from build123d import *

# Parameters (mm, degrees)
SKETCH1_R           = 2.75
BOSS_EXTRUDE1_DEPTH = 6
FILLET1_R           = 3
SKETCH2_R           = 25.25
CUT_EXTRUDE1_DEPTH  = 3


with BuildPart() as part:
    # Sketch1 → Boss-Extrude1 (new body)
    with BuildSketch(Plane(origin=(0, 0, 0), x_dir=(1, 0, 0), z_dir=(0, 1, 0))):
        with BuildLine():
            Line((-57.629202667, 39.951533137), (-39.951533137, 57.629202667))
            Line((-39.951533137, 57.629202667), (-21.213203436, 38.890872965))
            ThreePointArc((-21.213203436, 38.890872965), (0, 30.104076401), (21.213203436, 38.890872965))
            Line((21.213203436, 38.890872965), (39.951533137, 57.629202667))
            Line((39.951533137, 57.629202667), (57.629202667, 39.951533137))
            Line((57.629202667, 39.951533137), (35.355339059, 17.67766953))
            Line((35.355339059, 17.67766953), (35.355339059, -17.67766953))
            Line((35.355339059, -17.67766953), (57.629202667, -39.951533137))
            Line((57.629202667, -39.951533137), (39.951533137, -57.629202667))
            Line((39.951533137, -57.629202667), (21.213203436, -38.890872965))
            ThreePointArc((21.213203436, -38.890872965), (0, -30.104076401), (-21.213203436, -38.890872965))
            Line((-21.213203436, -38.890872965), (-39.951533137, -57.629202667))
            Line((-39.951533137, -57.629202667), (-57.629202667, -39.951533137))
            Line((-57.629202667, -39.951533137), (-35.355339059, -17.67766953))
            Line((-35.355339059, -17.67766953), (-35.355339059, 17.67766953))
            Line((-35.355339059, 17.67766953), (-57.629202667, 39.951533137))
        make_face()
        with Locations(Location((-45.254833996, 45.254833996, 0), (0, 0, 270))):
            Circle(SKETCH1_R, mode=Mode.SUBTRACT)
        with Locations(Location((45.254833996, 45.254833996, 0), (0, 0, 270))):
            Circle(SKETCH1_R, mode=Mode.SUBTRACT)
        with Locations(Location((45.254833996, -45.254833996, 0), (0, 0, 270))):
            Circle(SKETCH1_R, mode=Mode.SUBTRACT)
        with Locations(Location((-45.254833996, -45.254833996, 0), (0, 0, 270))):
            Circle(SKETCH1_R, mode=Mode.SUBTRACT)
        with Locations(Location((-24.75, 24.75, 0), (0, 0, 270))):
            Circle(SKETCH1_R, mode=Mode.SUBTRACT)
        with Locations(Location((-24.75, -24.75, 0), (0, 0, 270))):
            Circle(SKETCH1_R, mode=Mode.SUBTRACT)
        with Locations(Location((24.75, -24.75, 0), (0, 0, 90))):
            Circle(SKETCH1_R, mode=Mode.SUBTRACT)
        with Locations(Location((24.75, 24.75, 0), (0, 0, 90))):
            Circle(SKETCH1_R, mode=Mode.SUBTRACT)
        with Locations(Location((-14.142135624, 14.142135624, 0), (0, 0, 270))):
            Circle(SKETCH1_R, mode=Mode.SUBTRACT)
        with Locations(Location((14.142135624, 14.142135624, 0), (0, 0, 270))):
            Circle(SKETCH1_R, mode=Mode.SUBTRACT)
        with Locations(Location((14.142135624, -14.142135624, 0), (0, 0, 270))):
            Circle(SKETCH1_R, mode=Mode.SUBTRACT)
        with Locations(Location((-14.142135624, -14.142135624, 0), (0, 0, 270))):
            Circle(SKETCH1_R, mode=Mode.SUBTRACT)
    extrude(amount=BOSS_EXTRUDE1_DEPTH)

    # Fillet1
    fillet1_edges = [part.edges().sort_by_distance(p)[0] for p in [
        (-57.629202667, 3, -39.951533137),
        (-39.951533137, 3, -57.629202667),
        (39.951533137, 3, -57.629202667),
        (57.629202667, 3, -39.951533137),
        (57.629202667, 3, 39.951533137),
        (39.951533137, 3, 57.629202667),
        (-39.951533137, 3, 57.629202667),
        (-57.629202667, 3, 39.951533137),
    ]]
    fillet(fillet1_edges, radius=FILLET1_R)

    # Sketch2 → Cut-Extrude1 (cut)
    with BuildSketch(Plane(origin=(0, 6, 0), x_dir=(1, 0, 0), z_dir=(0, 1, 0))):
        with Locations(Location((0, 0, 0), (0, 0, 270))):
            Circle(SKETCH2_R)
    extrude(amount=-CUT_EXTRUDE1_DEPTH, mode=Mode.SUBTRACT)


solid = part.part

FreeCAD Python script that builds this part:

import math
import FreeCAD as App
import Part
import Sketcher

V = App.Vector
Q = App.Units.Quantity


def edges_at(feature, points):
    """Names of the edges that pass closest to the given points."""
    edges = feature.Shape.Edges
    near = lambda p: min(range(len(edges)), key=lambda i: edges[i].distToShape(Part.Vertex(*p))[0])
    return sorted({f"Edge{near(p) + 1}" for p in points})

doc = App.newDocument("Part")
body = doc.addObject("PartDesign::Body", "Body")

# Sketch on XZ plane
sketch1 = body.newObject("Sketcher::SketchObject", "Sketch")
sketch1.AttachmentSupport = (doc.getObject("XZ_Plane"), [""])
sketch1.MapMode = "FlatFace"
sketch1.addGeometry(Part.LineSegment(V(-39.951533, -57.629203, 0), V(-57.629203, -39.951533, 0)), False)
sketch1.addGeometry(Part.LineSegment(V(-57.629203, -39.951533, 0), V(-35.355339, -17.67767, 0)), False)
sketch1.addGeometry(Part.LineSegment(V(-35.355339, -17.67767, 0), V(-35.355339, 17.67767, 0)), False)
sketch1.addGeometry(Part.LineSegment(V(-35.355339, 17.67767, 0), V(-57.629203, 39.951533, 0)), False)
sketch1.addGeometry(Part.LineSegment(V(-57.629203, 39.951533, 0), V(-39.951533, 57.629203, 0)), False)
sketch1.addGeometry(Part.LineSegment(V(-39.951533, 57.629203, 0), V(-21.213203, 38.890873, 0)), False)
sketch1.addGeometry(Part.ArcOfCircle(Part.Circle(V(0, 60.104076, 0), V(0, 0, 1), 30), math.radians(-135), math.radians(-45)), False)
sketch1.addGeometry(Part.LineSegment(V(21.213203, 38.890873, 0), V(39.951533, 57.629203, 0)), False)
sketch1.addGeometry(Part.LineSegment(V(39.951533, 57.629203, 0), V(57.629203, 39.951533, 0)), False)
sketch1.addGeometry(Part.LineSegment(V(57.629203, 39.951533, 0), V(35.355339, 17.67767, 0)), False)
sketch1.addGeometry(Part.LineSegment(V(35.355339, 17.67767, 0), V(35.355339, -17.67767, 0)), False)
sketch1.addGeometry(Part.LineSegment(V(35.355339, -17.67767, 0), V(57.629203, -39.951533, 0)), False)
sketch1.addGeometry(Part.LineSegment(V(57.629203, -39.951533, 0), V(39.951533, -57.629203, 0)), False)
sketch1.addGeometry(Part.LineSegment(V(39.951533, -57.629203, 0), V(21.213203, -38.890873, 0)), False)
sketch1.addGeometry(Part.ArcOfCircle(Part.Circle(V(0, -60.104076, 0), V(0, 0, 1), 30), math.radians(45), math.radians(135)), False)
sketch1.addGeometry(Part.LineSegment(V(-21.213203, -38.890873, 0), V(-39.951533, -57.629203, 0)), False)
sketch1.addGeometry(Part.Circle(V(45.254834, 45.254834, 0), V(0, 0, 1), 2.75), False)
sketch1.addGeometry(Part.Circle(V(24.75, 24.75, 0), V(0, 0, 1), 2.75), False)
sketch1.addGeometry(Part.Circle(V(14.142136, 14.142136, 0), V(0, 0, 1), 2.75), False)
sketch1.addGeometry(Part.Circle(V(-45.254834, 45.254834, 0), V(0, 0, 1), 2.75), False)
sketch1.addGeometry(Part.Circle(V(-24.75, 24.75, 0), V(0, 0, 1), 2.75), False)
sketch1.addGeometry(Part.Circle(V(-14.142136, 14.142136, 0), V(0, 0, 1), 2.75), False)
sketch1.addGeometry(Part.Circle(V(14.142136, -14.142136, 0), V(0, 0, 1), 2.75), False)
sketch1.addGeometry(Part.Circle(V(24.75, -24.75, 0), V(0, 0, 1), 2.75), False)
sketch1.addGeometry(Part.Circle(V(45.254834, -45.254834, 0), V(0, 0, 1), 2.75), False)
sketch1.addGeometry(Part.Circle(V(-14.142136, -14.142136, 0), V(0, 0, 1), 2.75), False)
sketch1.addGeometry(Part.Circle(V(-24.75, -24.75, 0), V(0, 0, 1), 2.75), False)
sketch1.addGeometry(Part.Circle(V(-45.254834, -45.254834, 0), V(0, 0, 1), 2.75), False)
sketch1.addConstraint(Sketcher.Constraint("Coincident", 0, 2, 1, 1))
sketch1.addConstraint(Sketcher.Constraint("Coincident", 1, 2, 2, 1))
sketch1.addConstraint(Sketcher.Constraint("Coincident", 2, 2, 3, 1))
sketch1.addConstraint(Sketcher.Constraint("Coincident", 3, 2, 4, 1))
sketch1.addConstraint(Sketcher.Constraint("Coincident", 4, 2, 5, 1))
sketch1.addConstraint(Sketcher.Constraint("Tangent", 5, 2, 6, 1))
sketch1.addConstraint(Sketcher.Constraint("Tangent", 6, 2, 7, 1))
sketch1.addConstraint(Sketcher.Constraint("Coincident", 7, 2, 8, 1))
sketch1.addConstraint(Sketcher.Constraint("Coincident", 8, 2, 9, 1))
sketch1.addConstraint(Sketcher.Constraint("Coincident", 9, 2, 10, 1))
sketch1.addConstraint(Sketcher.Constraint("Coincident", 10, 2, 11, 1))
sketch1.addConstraint(Sketcher.Constraint("Coincident", 11, 2, 12, 1))
sketch1.addConstraint(Sketcher.Constraint("Coincident", 12, 2, 13, 1))
sketch1.addConstraint(Sketcher.Constraint("Tangent", 13, 2, 14, 1))
sketch1.addConstraint(Sketcher.Constraint("Tangent", 14, 2, 15, 1))
sketch1.addConstraint(Sketcher.Constraint("Coincident", 15, 2, 0, 1))
sketch1.addConstraint(Sketcher.Constraint("Vertical", 2))
sketch1.addConstraint(Sketcher.Constraint("Vertical", 10))
sketch1.addConstraint(Sketcher.Constraint("Equal", 6, 14))
sketch1.addConstraint(Sketcher.Constraint("Equal", 16, 17))
sketch1.addConstraint(Sketcher.Constraint("Equal", 17, 18))
sketch1.addConstraint(Sketcher.Constraint("Equal", 18, 19))
sketch1.addConstraint(Sketcher.Constraint("Equal", 19, 20))
sketch1.addConstraint(Sketcher.Constraint("Equal", 20, 21))
sketch1.addConstraint(Sketcher.Constraint("Equal", 21, 22))
sketch1.addConstraint(Sketcher.Constraint("Equal", 22, 23))
sketch1.addConstraint(Sketcher.Constraint("Equal", 23, 24))
sketch1.addConstraint(Sketcher.Constraint("Equal", 24, 25))
sketch1.addConstraint(Sketcher.Constraint("Equal", 25, 26))
sketch1.addConstraint(Sketcher.Constraint("Equal", 26, 27))
sketch1.addConstraint(Sketcher.Constraint("Symmetric", 6, 3, 14, 3, -1, 1))
sketch1.addConstraint(Sketcher.Constraint("Symmetric", 21, 3, 22, 3, -1, 1))
sketch1.addConstraint(Sketcher.Constraint("Symmetric", 20, 3, 23, 3, -1, 1))
sketch1.addConstraint(Sketcher.Constraint("Symmetric", 19, 3, 24, 3, -1, 1))
sketch1.addConstraint(Sketcher.Constraint("Symmetric", 18, 3, 25, 3, -1, 1))
sketch1.addConstraint(Sketcher.Constraint("Symmetric", 17, 3, 26, 3, -1, 1))
sketch1.addConstraint(Sketcher.Constraint("Symmetric", 16, 3, 27, 3, -1, 1))
sketch1.addConstraint(Sketcher.Constraint("Symmetric", 0, 2, 8, 2, -1, 1))
sketch1.addConstraint(Sketcher.Constraint("Symmetric", 1, 2, 9, 2, -1, 1))
sketch1.addConstraint(Sketcher.Constraint("Symmetric", 3, 2, 11, 2, -1, 1))
sketch1.addConstraint(Sketcher.Constraint("Symmetric", 4, 2, 12, 2, -1, 1))
sketch1.addConstraint(Sketcher.Constraint("Symmetric", 7, 2, 15, 2, -1, 1))
sketch1.addConstraint(Sketcher.Constraint("Symmetric", 16, 3, 19, 3, -2))
sketch1.addConstraint(Sketcher.Constraint("Symmetric", 17, 3, 20, 3, -2))
sketch1.addConstraint(Sketcher.Constraint("Symmetric", 18, 3, 21, 3, -2))
sketch1.addConstraint(Sketcher.Constraint("Symmetric", 5, 2, 6, 2, -2))
sketch1.addConstraint(Sketcher.Constraint("Symmetric", 3, 2, 8, 2, -2))
sketch1.addConstraint(Sketcher.Constraint("Perpendicular", 0, 1))
sketch1.addConstraint(Sketcher.Constraint("Perpendicular", 1, 3))
sketch1.addConstraint(Sketcher.Constraint("Perpendicular", 3, 4))
sketch1.addConstraint(Sketcher.Constraint("Perpendicular", 4, 5))
sketch1.addConstraint(Sketcher.Constraint("Perpendicular", 5, 7))
sketch1.addConstraint(Sketcher.Constraint("Perpendicular", 9, 11))
sketch1.addConstraint(Sketcher.Constraint("Radius", 6, Q("30 mm")))
sketch1.addConstraint(Sketcher.Constraint("Diameter", 16, Q("5.5 mm")))
sketch1.addConstraint(Sketcher.Constraint("Distance", 0, Q("25 mm")))
sketch1.addConstraint(Sketcher.Constraint("Distance", 1, Q("31.5 mm")))
sketch1.addConstraint(Sketcher.Constraint("Distance", 5, Q("26.5 mm")))
sketch1.addConstraint(Sketcher.Constraint("DistanceX", 20, 3, 17, 3, Q("49.5 mm")))
sketch1.addConstraint(Sketcher.Constraint("DistanceY", 23, 3, 17, 3, Q("49.5 mm")))
sketch1.addConstraint(Sketcher.Constraint("DistanceY", 2, 1, 2, 2, Q("35.355339 mm")))
sketch1.addConstraint(Sketcher.Constraint("DistanceX", 18, 3, 16, 3, Q("31.112698 mm")))
sketch1.addConstraint(Sketcher.Constraint("DistanceY", 18, 3, 16, 3, Q("31.112698 mm")))
sketch1.addConstraint(Sketcher.Constraint("DistanceY", 27, 3, 0, 2, Q("5.303301 mm")))
sketch1.addConstraint(Sketcher.Constraint("DistanceX", 19, 3, 4, 2, Q("5.303301 mm")))
pad1 = body.newObject("PartDesign::Pad", "Pad")
pad1.Profile = sketch1
pad1.Length = 6
pad1.Reversed = True
doc.recompute()

fillet = body.newObject("PartDesign::Fillet", "Fillet")
fillet.Base = (pad1, edges_at(pad1, [
    (-57.629, 3, -39.952),
    (-39.952, 3, -57.629),
    (39.952, 3, -57.629),
    (57.629, 3, -39.952),
    (57.629, 3, 39.952),
    (39.952, 3, 57.629),
    (-39.952, 3, 57.629),
    (-57.629, 3, 39.952),
]))
fillet.Radius = 3

# Sketch on XZ plane
sketch2 = body.newObject("Sketcher::SketchObject", "Sketch001")
sketch2.AttachmentSupport = (doc.getObject("XZ_Plane"), [""])
sketch2.MapMode = "FlatFace"
sketch2.AttachmentOffset = App.Placement(V(0, 0, -6), App.Rotation())
sketch2.addGeometry(Part.Circle(V(0, 0, 0), V(0, 0, 1), 25.25), False)
sketch2.addConstraint(Sketcher.Constraint("Coincident", 0, 3, -1, 1))
sketch2.addConstraint(Sketcher.Constraint("Diameter", 0, Q("50.5 mm")))
pocket1 = body.newObject("PartDesign::Pocket", "Pocket")
pocket1.Profile = sketch2
pocket1.Length = 3
pocket1.Reversed = True

doc.recompute()
